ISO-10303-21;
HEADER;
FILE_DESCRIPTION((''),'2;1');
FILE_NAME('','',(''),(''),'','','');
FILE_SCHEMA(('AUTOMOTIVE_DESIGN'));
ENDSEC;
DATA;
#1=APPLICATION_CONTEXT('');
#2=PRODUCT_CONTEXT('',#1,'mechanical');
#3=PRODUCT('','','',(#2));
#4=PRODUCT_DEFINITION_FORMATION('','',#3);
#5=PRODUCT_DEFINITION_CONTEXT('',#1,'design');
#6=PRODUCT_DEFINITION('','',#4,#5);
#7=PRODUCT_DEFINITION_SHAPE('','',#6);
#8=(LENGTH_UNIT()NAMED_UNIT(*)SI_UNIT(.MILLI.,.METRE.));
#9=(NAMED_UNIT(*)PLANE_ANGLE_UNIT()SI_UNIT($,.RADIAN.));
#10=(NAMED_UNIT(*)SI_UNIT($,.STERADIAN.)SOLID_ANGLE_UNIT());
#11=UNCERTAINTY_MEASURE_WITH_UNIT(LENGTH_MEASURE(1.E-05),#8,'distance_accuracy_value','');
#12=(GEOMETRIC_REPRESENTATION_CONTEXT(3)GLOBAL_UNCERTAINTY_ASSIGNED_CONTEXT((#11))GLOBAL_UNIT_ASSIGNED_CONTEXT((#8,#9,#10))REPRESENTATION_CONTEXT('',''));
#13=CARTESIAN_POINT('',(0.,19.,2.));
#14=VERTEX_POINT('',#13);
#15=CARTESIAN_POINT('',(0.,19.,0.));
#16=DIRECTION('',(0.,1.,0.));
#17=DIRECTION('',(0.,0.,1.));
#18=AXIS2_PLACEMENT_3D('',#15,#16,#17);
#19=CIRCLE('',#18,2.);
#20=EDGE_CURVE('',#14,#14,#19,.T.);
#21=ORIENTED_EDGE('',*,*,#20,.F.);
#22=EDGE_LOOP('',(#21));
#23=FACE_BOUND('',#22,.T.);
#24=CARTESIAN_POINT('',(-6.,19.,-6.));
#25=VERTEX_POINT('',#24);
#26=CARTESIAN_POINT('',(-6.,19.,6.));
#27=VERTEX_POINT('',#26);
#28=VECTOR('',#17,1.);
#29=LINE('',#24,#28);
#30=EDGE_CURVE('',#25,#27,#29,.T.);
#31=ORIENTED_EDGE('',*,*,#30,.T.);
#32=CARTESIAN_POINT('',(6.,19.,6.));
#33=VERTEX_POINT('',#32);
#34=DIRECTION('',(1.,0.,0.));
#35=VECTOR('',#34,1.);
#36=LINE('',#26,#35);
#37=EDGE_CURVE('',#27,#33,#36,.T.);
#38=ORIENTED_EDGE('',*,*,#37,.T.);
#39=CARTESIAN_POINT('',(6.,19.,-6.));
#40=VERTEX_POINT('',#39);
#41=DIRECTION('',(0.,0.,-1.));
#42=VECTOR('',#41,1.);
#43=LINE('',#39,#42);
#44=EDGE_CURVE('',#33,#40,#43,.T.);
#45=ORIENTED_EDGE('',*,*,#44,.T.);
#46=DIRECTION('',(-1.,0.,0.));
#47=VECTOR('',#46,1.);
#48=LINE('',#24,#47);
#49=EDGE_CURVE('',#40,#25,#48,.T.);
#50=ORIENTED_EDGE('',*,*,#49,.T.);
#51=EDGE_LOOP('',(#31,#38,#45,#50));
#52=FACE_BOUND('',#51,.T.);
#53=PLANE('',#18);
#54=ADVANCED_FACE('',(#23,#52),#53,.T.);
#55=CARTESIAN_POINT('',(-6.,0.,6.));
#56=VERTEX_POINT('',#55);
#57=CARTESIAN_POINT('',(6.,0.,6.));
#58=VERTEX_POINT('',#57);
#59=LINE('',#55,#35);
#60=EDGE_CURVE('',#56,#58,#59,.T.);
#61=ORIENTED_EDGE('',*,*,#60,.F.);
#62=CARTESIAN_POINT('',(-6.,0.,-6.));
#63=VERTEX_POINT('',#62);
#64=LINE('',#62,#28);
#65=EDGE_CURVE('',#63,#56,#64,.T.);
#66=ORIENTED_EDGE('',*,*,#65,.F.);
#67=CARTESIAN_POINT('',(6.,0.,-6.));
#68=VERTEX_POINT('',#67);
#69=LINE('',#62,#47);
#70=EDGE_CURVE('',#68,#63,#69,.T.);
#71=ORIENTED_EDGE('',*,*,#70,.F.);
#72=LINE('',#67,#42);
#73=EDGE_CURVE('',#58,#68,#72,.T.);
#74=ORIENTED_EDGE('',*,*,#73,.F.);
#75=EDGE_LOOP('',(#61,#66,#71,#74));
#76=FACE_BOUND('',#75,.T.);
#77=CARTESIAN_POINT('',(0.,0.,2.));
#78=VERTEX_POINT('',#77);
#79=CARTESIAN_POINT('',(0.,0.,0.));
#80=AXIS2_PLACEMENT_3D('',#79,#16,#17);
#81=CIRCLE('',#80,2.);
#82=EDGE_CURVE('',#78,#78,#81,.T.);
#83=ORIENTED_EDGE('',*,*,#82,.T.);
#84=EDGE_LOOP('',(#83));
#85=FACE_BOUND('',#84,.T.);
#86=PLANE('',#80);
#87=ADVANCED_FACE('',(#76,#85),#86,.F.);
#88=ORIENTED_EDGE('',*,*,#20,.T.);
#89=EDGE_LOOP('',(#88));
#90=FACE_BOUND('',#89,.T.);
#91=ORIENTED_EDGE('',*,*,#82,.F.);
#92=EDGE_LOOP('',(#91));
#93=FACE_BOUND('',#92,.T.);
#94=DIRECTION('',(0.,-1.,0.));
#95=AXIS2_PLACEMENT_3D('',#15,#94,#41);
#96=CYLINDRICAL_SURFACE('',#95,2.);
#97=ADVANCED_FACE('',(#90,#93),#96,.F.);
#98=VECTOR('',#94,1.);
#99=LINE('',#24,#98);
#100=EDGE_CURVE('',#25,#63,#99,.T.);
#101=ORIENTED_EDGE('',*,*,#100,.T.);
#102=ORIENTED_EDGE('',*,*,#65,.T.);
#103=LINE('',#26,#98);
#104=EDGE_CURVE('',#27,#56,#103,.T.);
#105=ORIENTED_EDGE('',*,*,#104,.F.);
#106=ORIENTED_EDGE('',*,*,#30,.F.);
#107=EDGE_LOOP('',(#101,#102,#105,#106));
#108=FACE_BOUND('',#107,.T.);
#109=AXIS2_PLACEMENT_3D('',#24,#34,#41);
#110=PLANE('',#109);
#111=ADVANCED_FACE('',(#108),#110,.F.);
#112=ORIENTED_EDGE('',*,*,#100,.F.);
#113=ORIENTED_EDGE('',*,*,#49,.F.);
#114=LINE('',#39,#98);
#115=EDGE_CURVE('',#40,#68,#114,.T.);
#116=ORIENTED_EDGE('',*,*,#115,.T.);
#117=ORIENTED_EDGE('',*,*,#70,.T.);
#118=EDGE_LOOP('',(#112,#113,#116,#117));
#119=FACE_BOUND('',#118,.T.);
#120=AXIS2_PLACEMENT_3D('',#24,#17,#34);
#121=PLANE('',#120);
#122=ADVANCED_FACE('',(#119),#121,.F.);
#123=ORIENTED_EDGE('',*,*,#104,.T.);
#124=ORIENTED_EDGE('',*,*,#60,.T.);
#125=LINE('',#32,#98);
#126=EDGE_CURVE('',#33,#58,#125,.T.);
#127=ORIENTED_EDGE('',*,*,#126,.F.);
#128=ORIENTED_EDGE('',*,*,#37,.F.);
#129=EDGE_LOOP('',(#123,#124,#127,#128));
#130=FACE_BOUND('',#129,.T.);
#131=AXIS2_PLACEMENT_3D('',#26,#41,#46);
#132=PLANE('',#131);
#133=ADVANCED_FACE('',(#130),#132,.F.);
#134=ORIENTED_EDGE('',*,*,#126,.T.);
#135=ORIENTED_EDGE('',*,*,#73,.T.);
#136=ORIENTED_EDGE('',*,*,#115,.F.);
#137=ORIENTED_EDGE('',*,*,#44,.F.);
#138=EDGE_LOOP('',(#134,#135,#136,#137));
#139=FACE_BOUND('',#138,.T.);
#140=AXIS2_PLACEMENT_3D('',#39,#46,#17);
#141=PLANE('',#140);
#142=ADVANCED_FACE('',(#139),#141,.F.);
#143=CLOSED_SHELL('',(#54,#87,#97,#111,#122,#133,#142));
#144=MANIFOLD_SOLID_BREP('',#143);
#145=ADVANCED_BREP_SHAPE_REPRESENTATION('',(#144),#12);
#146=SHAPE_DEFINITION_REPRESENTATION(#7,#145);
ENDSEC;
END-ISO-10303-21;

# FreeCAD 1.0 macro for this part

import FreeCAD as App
import Part
import Sketcher


def add_polygon(sketch, points):
    """Adds a closed chain of lines whose ends are joined by coincident constraints."""
    first, n = sketch.GeometryCount, len(points)
    for a, b in zip(points, points[1:] + points[:1]):
        sketch.addGeometry(Part.LineSegment(App.Vector(*a, 0), App.Vector(*b, 0)), False)
    for i in range(n):
        sketch.addConstraint(Sketcher.Constraint("Coincident", first + i, 2, first + (i + 1) % n, 1))

doc = App.newDocument("Part")
params = doc.addObject("Spreadsheet::Sheet", "Params")
for row, (alias, value) in enumerate([
    ("sketch1_diameter", "4 mm"),
    ("sketch1_width", "12 mm"),
    ("pad1_length", "19 mm"),
], start=1):
    params.set(f"A{row}", alias)
    params.set(f"B{row}", "=" + value)
    params.setAlias(f"B{row}", alias)

body = doc.addObject("PartDesign::Body", "Body")

# Sketch on XZ plane
sketch1 = body.newObject("Sketcher::SketchObject", "Sketch")
sketch1.AttachmentSupport = (doc.getObject("XZ_Plane"), [""])
sketch1.MapMode = "FlatFace"
add_polygon(sketch1, [(-6, -6), (-6, 6), (6, 6), (6, -6)])  # lines 0-3
sketch1.addGeometry(Part.Circle(App.Vector(0, 0, 0), App.Vector(0, 0, 1), 2), False)  # 4
sketch1.addConstraint([
    Sketcher.Constraint("Vertical", 0),
    Sketcher.Constraint("Horizontal", 1),
    Sketcher.Constraint("Vertical", 2),
    Sketcher.Constraint("Horizontal", 3),
    Sketcher.Constraint("Coincident", 4, 3, -1, 1),
    Sketcher.Constraint("Symmetric", 0, 2, 2, 2, -1, 1),
    Sketcher.Constraint("Equal", 3, 0),
    Sketcher.Constraint("Diameter", 4, 4.0),
    Sketcher.Constraint("DistanceX", 1, 1, 1, 2, 12.0),
])
sketch1.setExpression("Constraints[11]", "Params.sketch1_diameter")
sketch1.setExpression("Constraints[12]", "Params.sketch1_width")
pad1 = body.newObject("PartDesign::Pad", "Pad")
pad1.Profile = sketch1
pad1.setExpression("Length", "Params.pad1_length")
pad1.Reversed = True

doc.recompute()
